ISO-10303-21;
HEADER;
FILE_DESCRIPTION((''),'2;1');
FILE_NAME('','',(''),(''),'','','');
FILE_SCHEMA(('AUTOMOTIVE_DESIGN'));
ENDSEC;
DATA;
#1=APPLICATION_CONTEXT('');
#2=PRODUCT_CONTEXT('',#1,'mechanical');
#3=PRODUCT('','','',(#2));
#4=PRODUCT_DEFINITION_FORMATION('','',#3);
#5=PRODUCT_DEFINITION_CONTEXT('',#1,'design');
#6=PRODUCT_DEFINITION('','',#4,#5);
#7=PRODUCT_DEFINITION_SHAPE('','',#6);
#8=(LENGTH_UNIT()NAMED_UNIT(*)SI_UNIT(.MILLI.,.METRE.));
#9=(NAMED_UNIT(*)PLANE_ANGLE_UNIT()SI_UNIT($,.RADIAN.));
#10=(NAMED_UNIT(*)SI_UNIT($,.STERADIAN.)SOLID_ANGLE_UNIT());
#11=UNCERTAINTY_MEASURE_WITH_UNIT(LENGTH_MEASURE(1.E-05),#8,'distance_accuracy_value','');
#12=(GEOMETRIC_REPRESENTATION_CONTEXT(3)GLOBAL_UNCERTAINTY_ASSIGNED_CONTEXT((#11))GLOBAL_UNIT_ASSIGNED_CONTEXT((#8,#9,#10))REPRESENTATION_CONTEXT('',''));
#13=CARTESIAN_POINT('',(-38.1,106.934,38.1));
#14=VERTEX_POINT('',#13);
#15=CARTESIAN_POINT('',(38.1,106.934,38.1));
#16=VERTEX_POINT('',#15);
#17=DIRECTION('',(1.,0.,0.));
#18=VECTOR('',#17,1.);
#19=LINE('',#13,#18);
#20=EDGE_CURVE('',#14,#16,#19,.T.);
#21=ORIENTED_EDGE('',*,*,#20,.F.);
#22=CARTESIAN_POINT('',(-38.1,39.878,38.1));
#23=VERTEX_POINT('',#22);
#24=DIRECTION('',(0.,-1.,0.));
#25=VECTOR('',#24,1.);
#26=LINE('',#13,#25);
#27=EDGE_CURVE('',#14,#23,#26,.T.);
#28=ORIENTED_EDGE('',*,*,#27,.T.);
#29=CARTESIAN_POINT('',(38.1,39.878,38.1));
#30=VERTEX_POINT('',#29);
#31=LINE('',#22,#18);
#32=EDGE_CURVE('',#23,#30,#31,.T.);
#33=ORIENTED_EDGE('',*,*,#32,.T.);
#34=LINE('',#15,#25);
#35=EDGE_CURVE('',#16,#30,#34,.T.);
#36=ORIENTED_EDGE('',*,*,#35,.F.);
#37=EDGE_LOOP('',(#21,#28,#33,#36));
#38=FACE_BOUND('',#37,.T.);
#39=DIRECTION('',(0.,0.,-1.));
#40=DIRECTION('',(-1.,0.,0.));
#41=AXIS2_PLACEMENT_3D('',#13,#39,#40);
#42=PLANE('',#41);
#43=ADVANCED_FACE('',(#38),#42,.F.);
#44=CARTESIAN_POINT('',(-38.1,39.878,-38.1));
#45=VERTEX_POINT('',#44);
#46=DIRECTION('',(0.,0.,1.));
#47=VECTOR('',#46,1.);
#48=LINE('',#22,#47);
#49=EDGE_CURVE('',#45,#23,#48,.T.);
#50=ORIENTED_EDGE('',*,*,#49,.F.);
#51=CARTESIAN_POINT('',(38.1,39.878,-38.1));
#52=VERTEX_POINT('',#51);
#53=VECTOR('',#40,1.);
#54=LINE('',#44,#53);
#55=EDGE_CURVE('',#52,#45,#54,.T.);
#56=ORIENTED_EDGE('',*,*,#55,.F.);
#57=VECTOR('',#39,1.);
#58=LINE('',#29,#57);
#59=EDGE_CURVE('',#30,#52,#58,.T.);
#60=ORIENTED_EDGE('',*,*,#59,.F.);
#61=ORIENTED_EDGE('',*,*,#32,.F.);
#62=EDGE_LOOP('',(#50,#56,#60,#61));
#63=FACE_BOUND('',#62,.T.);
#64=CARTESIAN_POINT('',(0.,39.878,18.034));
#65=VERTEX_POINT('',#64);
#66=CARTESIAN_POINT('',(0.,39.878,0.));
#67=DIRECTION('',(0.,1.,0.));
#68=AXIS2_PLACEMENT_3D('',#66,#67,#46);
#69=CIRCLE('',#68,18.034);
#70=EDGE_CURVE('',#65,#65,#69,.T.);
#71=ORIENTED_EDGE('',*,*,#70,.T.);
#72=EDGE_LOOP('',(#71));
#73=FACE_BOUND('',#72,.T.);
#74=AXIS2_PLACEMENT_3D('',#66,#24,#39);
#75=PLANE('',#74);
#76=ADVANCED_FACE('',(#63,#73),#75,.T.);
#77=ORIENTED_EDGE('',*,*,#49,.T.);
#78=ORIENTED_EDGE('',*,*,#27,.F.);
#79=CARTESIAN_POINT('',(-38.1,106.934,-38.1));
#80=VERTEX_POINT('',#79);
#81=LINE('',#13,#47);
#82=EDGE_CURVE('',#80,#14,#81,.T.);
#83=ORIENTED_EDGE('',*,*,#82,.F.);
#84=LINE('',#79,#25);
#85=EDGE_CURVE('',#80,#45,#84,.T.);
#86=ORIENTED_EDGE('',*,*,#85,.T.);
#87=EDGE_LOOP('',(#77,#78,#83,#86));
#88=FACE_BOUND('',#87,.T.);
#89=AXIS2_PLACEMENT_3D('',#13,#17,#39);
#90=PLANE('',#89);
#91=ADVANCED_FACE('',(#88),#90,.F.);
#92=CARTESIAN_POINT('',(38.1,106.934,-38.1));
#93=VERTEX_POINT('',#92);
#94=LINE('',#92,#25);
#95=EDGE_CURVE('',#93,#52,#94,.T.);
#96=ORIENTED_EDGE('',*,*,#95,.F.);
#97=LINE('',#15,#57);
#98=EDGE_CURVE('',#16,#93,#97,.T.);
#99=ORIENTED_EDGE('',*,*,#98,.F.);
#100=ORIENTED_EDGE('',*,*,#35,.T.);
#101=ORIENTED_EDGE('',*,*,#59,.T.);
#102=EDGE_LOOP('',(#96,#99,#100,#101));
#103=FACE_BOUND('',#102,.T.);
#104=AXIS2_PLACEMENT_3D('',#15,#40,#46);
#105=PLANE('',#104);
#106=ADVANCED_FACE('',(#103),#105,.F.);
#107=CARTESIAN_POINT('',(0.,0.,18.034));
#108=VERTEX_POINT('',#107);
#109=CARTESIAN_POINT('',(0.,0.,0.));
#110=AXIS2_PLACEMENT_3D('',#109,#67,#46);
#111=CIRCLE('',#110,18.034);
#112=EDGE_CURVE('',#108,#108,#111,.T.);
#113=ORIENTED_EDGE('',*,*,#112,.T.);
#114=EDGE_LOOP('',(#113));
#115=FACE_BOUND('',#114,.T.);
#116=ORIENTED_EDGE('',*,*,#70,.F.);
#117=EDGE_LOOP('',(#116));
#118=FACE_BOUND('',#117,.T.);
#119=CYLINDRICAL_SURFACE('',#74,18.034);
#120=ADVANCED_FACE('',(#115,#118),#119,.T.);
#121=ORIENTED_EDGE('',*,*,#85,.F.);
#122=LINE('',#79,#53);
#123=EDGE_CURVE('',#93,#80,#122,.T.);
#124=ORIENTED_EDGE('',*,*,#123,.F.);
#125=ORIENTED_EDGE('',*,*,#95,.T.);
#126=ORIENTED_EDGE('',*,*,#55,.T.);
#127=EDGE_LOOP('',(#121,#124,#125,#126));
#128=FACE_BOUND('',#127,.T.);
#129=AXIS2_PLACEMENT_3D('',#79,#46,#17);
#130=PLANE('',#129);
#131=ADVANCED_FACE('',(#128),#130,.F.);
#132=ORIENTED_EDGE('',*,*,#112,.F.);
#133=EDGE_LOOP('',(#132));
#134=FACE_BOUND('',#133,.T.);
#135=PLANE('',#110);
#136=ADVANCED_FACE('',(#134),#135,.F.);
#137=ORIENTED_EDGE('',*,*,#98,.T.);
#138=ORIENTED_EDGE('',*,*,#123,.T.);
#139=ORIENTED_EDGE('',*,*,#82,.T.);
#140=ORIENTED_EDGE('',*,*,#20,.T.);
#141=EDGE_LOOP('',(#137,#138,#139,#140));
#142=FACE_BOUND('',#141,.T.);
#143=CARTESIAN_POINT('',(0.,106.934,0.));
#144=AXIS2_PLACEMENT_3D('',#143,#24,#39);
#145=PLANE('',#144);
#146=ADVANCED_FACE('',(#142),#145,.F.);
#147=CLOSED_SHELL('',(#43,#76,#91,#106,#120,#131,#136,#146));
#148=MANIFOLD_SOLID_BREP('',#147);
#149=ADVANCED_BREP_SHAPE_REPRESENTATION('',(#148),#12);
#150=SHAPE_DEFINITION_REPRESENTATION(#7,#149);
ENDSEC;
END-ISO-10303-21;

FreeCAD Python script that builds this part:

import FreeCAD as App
import Part
import Sketcher
Q = App.Units.Quantity


def add_polygon(sketch, points):
    """Adds a closed chain of lines whose ends are joined by coincident constraints."""
    first, n = sketch.GeometryCount, len(points)
    for a, b in zip(points, points[1:] + points[:1]):
        sketch.addGeometry(Part.LineSegment(App.Vector(*a, 0), App.Vector(*b, 0)), False)
    for i in range(n):
        sketch.addConstraint(Sketcher.Constraint("Coincident", first + i, 2, first + (i + 1) % n, 1))

doc = App.newDocument("Part")
body = doc.addObject("PartDesign::Body", "Body")

# Sketch on XZ plane
sketch1 = body.newObject("Sketcher::SketchObject", "Sketch")
sketch1.AttachmentSupport = (doc.getObject("XZ_Plane"), [""])
sketch1.MapMode = "FlatFace"
sketch1.addGeometry(Part.Circle(App.Vector(0, 0, 0), App.Vector(0, 0, 1), 18.034), False)
sketch1.addConstraint([
    Sketcher.Constraint("Coincident", 0, 3, -1, 1),
    Sketcher.Constraint("Diameter", 0, Q("1.42 in")),
])
pad1 = body.newObject("PartDesign::Pad", "Pad")
pad1.Profile = sketch1
pad1.Length = Q("1.57 in")
pad1.Reversed = True

# Sketch on XZ plane
sketch2 = body.newObject("Sketcher::SketchObject", "Sketch001")
sketch2.AttachmentSupport = (doc.getObject("XZ_Plane"), [""])
sketch2.MapMode = "FlatFace"
sketch2.AttachmentOffset = App.Placement(App.Vector(0, 0, -1.57 * 25.4), App.Rotation())
add_polygon(sketch2, [(-38.1, -38.1), (-38.1, 38.1), (38.1, 38.1), (38.1, -38.1)])  # lines 0-3
sketch2.addConstraint([
    Sketcher.Constraint("Vertical", 0),
    Sketcher.Constraint("Horizontal", 1),
    Sketcher.Constraint("Vertical", 2),
    Sketcher.Constraint("Horizontal", 3),
    Sketcher.Constraint("Symmetric", 0, 2, 2, 2, -1, 1),
    Sketcher.Constraint("Equal", 3, 0),
    Sketcher.Constraint("DistanceX", 1, 1, 1, 2, Q("3 in")),
])
pad2 = body.newObject("PartDesign::Pad", "Pad001")
pad2.Profile = sketch2
pad2.Length = Q("2.64 in")
pad2.Reversed = True

doc.recompute()
